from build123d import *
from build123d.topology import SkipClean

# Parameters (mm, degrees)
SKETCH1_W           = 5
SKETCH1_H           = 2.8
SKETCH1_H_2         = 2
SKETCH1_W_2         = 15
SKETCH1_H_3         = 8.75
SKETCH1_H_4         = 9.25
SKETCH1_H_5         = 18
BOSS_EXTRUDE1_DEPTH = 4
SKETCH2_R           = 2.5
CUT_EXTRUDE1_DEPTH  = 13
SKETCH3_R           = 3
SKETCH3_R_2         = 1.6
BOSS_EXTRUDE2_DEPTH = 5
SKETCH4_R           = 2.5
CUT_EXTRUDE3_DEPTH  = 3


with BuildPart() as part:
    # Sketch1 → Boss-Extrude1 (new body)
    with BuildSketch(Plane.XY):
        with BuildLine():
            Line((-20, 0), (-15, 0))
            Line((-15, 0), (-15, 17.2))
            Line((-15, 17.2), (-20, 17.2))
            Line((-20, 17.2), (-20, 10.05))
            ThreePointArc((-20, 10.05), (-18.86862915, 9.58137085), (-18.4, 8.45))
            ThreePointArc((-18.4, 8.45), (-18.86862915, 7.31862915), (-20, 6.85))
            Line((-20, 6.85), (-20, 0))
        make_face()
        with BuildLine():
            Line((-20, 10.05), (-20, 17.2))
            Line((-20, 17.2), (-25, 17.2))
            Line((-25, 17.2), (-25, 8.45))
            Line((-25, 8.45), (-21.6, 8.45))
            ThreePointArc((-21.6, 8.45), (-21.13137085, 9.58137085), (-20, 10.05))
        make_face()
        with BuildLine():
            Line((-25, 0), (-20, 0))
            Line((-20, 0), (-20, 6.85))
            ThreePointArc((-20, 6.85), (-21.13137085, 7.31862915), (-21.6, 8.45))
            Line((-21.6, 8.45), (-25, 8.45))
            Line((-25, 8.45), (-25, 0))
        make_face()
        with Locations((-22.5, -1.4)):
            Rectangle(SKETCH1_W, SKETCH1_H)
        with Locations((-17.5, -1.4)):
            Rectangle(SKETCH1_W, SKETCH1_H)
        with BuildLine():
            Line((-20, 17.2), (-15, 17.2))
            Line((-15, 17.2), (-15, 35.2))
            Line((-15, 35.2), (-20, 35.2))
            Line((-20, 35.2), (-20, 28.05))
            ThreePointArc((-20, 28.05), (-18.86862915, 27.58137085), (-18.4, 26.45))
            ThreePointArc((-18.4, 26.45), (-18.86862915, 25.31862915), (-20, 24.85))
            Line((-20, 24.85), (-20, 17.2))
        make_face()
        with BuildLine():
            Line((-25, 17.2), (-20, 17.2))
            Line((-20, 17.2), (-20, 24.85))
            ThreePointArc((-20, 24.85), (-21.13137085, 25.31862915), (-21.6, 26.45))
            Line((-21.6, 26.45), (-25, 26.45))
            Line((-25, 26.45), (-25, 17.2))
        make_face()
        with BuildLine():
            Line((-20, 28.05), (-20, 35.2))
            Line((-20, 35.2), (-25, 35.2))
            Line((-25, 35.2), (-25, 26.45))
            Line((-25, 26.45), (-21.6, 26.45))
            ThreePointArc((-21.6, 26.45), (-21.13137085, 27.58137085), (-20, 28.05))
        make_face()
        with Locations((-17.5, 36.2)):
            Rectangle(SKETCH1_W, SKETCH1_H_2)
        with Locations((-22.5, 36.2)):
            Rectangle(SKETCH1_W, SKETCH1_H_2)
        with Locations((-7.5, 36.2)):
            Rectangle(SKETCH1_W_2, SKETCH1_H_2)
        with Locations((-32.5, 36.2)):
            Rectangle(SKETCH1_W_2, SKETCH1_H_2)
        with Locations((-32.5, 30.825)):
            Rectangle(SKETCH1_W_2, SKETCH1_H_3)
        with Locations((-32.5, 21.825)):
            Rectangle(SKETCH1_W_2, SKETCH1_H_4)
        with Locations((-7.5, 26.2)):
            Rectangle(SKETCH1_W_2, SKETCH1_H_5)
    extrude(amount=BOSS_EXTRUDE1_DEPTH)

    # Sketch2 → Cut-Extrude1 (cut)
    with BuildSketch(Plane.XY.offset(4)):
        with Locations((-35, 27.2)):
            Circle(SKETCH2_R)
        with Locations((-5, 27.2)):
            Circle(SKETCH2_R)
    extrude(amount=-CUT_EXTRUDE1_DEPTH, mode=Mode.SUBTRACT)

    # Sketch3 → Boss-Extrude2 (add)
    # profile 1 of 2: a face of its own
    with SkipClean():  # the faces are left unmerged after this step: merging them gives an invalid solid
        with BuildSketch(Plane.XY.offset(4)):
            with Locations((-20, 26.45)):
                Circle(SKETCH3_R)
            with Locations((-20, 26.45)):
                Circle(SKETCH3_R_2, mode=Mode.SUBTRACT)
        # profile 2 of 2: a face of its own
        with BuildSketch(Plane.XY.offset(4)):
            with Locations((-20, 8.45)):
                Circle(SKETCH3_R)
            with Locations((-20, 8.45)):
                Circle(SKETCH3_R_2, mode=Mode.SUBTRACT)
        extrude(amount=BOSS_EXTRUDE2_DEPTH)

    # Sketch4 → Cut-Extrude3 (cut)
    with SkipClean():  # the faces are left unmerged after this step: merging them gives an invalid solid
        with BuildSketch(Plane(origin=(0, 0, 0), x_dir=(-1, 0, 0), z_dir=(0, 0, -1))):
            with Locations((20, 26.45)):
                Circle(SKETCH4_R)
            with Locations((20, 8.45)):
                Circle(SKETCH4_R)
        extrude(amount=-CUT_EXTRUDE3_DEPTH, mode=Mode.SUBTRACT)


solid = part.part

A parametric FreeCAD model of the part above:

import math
import FreeCAD as App
import Part
import Sketcher
from FreeCAD import Vector
Q = App.Units.Quantity

doc = App.newDocument("Part")
body = doc.addObject("PartDesign::Body", "Body")

# Sketch on XY plane
sketch1 = body.newObject("Sketcher::SketchObject", "Sketch")
sketch1.AttachmentSupport = (doc.getObject("XY_Plane"), [""])
sketch1.MapMode = "FlatFace"
sketch1.addGeometry(Part.LineSegment(Vector(-25, -2.8, 0), Vector(-15, -2.8, 0)), False)
sketch1.addGeometry(Part.LineSegment(Vector(-15, -2.8, 0), Vector(-15, 17.2, 0)), False)
sketch1.addGeometry(Part.LineSegment(Vector(-15, 17.2, 0), Vector(0, 17.2, 0)), False)
sketch1.addGeometry(Part.LineSegment(Vector(0, 17.2, 0), Vector(0, 37.2, 0)), False)
sketch1.addGeometry(Part.LineSegment(Vector(0, 37.2, 0), Vector(-40, 37.2, 0)), False)
sketch1.addGeometry(Part.LineSegment(Vector(-40, 37.2, 0), Vector(-40, 17.2, 0)), False)
sketch1.addGeometry(Part.LineSegment(Vector(-40, 17.2, 0), Vector(-25, 17.2, 0)), False)
sketch1.addGeometry(Part.LineSegment(Vector(-25, 17.2, 0), Vector(-25, -2.8, 0)), False)
sketch1.addGeometry(Part.ArcOfCircle(Part.Circle(Vector(-20, 26.4, 0), Vector(0, 0, 1), 1.6), math.radians(0), math.radians(90)), False)
sketch1.addGeometry(Part.ArcOfCircle(Part.Circle(Vector(-20, 26.4, 0), Vector(0, 0, 1), 1.6), math.radians(-90), math.radians(0)), False)
sketch1.addGeometry(Part.ArcOfCircle(Part.Circle(Vector(-20, 26.4, 0), Vector(0, 0, 1), 1.6), math.radians(180), math.radians(270)), False)
sketch1.addGeometry(Part.ArcOfCircle(Part.Circle(Vector(-20, 26.4, 0), Vector(0, 0, 1), 1.6), math.radians(90), math.radians(180)), False)
sketch1.addGeometry(Part.ArcOfCircle(Part.Circle(Vector(-20, 8.4, 0), Vector(0, 0, 1), 1.6), math.radians(90), math.radians(180)), False)
sketch1.addGeometry(Part.ArcOfCircle(Part.Circle(Vector(-20, 8.4, 0), Vector(0, 0, 1), 1.6), math.radians(0), math.radians(90)), False)
sketch1.addGeometry(Part.ArcOfCircle(Part.Circle(Vector(-20, 8.4, 0), Vector(0, 0, 1), 1.6), math.radians(-90), math.radians(0)), False)
sketch1.addGeometry(Part.ArcOfCircle(Part.Circle(Vector(-20, 8.4, 0), Vector(0, 0, 1), 1.6), math.radians(180), math.radians(270)), False)
sketch1.addConstraint(Sketcher.Constraint("Coincident", 0, 2, 1, 1))
sketch1.addConstraint(Sketcher.Constraint("Coincident", 1, 2, 2, 1))
sketch1.addConstraint(Sketcher.Constraint("Coincident", 2, 2, 3, 1))
sketch1.addConstraint(Sketcher.Constraint("Coincident", 3, 2, 4, 1))
sketch1.addConstraint(Sketcher.Constraint("Coincident", 4, 2, 5, 1))
sketch1.addConstraint(Sketcher.Constraint("Coincident", 5, 2, 6, 1))
sketch1.addConstraint(Sketcher.Constraint("Coincident", 6, 2, 7, 1))
sketch1.addConstraint(Sketcher.Constraint("Coincident", 7, 2, 0, 1))
sketch1.addConstraint(Sketcher.Constraint("Tangent", 8, 1, 9, 2))
sketch1.addConstraint(Sketcher.Constraint("Tangent", 9, 1, 10, 2))
sketch1.addConstraint(Sketcher.Constraint("Tangent", 10, 1, 11, 2))
sketch1.addConstraint(Sketcher.Constraint("Tangent", 11, 1, 8, 2))
sketch1.addConstraint(Sketcher.Constraint("Tangent", 12, 1, 13, 2))
sketch1.addConstraint(Sketcher.Constraint("Tangent", 13, 1, 14, 2))
sketch1.addConstraint(Sketcher.Constraint("Tangent", 14, 1, 15, 2))
sketch1.addConstraint(Sketcher.Constraint("Tangent", 15, 1, 12, 2))
sketch1.addConstraint(Sketcher.Constraint("Horizontal", 0))
sketch1.addConstraint(Sketcher.Constraint("Vertical", 1))
sketch1.addConstraint(Sketcher.Constraint("Horizontal", 2))
sketch1.addConstraint(Sketcher.Constraint("Vertical", 3))
sketch1.addConstraint(Sketcher.Constraint("Horizontal", 4))
sketch1.addConstraint(Sketcher.Constraint("Vertical", 5))
sketch1.addConstraint(Sketcher.Constraint("Horizontal", 6))
sketch1.addConstraint(Sketcher.Constraint("Vertical", 7))
sketch1.addConstraint(Sketcher.Constraint("Equal", 8, 9))
sketch1.addConstraint(Sketcher.Constraint("Equal", 11, 12))
sketch1.addConstraint(Sketcher.Constraint("Equal", 12, 13))
sketch1.addConstraint(Sketcher.Constraint("PointOnObject", 2, 2, -2))
sketch1.addConstraint(Sketcher.Constraint("Horizontal", 2, 2, 5, 2))
sketch1.addConstraint(Sketcher.Constraint("Horizontal", 11, 3, 8, 1))
sketch1.addConstraint(Sketcher.Constraint("Horizontal", 8, 1, 10, 1))
sketch1.addConstraint(Sketcher.Constraint("Horizontal", 15, 3, 13, 1))
sketch1.addConstraint(Sketcher.Constraint("Horizontal", 13, 1, 15, 1))
sketch1.addConstraint(Sketcher.Constraint("Vertical", 11, 3, 12, 3))
sketch1.addConstraint(Sketcher.Constraint("Vertical", 15, 3, 9, 1))
sketch1.addConstraint(Sketcher.Constraint("Vertical", 9, 1, 11, 1))
sketch1.addConstraint(Sketcher.Constraint("Vertical", 11, 1, 12, 1))
sketch1.addConstraint(Sketcher.Constraint("Vertical", 12, 1, 14, 1))
sketch1.addConstraint(Sketcher.Constraint("Equal", 2, 6))
sketch1.addConstraint(Sketcher.Constraint("Equal", 1, 3))
sketch1.addConstraint(Sketcher.Constraint("Radius", 8, Q("1.6 mm")))
sketch1.addConstraint(Sketcher.Constraint("DistanceX", 0, 1, 0, 2, Q("10 mm")))
sketch1.addConstraint(Sketcher.Constraint("DistanceX", 2, 1, 2, 2, Q("15 mm")))
sketch1.addConstraint(Sketcher.Constraint("DistanceY", 1, 1, 1, 2, Q("20 mm")))
sketch1.addConstraint(Sketcher.Constraint("DistanceX", 8, 3, -1, 1, Q("20 mm")))
sketch1.addConstraint(Sketcher.Constraint("DistanceY", 12, 3, 8, 3, Q("18 mm")))
sketch1.addConstraint(Sketcher.Constraint("DistanceY", 0, 2, -1, 1, Q("2.8 mm")))
sketch1.addConstraint(Sketcher.Constraint("DistanceY", -1, 1, 8, 3, Q("26.45 mm")))
pad1 = body.newObject("PartDesign::Pad", "Pad")
pad1.Profile = sketch1
pad1.Length = 4

# Sketch on XY plane
sketch2 = body.newObject("Sketcher::SketchObject", "Sketch001")
sketch2.AttachmentSupport = (doc.getObject("XY_Plane"), [""])
sketch2.MapMode = "FlatFace"
sketch2.AttachmentOffset = App.Placement(Vector(0, 0, 4), App.Rotation())
sketch2.addGeometry(Part.Circle(Vector(-35, 27.2, 0), Vector(0, 0, 1), 2.5), False)
sketch2.addGeometry(Part.Circle(Vector(-5, 27.2, 0), Vector(0, 0, 1), 2.5), False)
sketch2.addConstraint(Sketcher.Constraint("Equal", 0, 1))
sketch2.addConstraint(Sketcher.Constraint("Horizontal", 0, 3, 1, 3))
sketch2.addConstraint(Sketcher.Constraint("Diameter", 0, Q("5 mm")))
sketch2.addConstraint(Sketcher.Constraint("DistanceX", 0, 3, -1, 1, Q("35 mm")))
sketch2.addConstraint(Sketcher.Constraint("DistanceX", 1, 3, -1, 1, Q("5 mm")))
sketch2.addConstraint(Sketcher.Constraint("DistanceY", -1, 1, 0, 3, Q("27.2 mm")))
pocket1 = body.newObject("PartDesign::Pocket", "Pocket")
pocket1.Profile = sketch2
pocket1.Length = 13

# Sketch on XY plane
sketch3 = body.newObject("Sketcher::SketchObject", "Sketch002")
sketch3.AttachmentSupport = (doc.getObject("XY_Plane"), [""])
sketch3.MapMode = "FlatFace"
sketch3.AttachmentOffset = App.Placement(Vector(0, 0, 4), App.Rotation())
sketch3.addGeometry(Part.Circle(Vector(-20, 26.4, 0), Vector(0, 0, 1), 3), False)
sketch3.addGeometry(Part.Circle(Vector(-20, 26.4, 0), Vector(0, 0, 1), 1.6), False)
sketch3.addGeometry(Part.Circle(Vector(-20, 8.4, 0), Vector(0, 0, 1), 3), False)
sketch3.addGeometry(Part.Circle(Vector(-20, 8.4, 0), Vector(0, 0, 1), 1.6), False)
sketch3.addConstraint(Sketcher.Constraint("Coincident", 1, 3, 0, 3))
sketch3.addConstraint(Sketcher.Constraint("Coincident", 3, 3, 2, 3))
sketch3.addConstraint(Sketcher.Constraint("Equal", 0, 2))
sketch3.addConstraint(Sketcher.Constraint("Equal", 1, 3))
sketch3.addConstraint(Sketcher.Constraint("Vertical", 1, 3, 2, 3))
sketch3.addConstraint(Sketcher.Constraint("Diameter", 0, Q("6 mm")))
sketch3.addConstraint(Sketcher.Constraint("Diameter", 1, Q("3.2 mm")))
sketch3.addConstraint(Sketcher.Constraint("DistanceX", 0, 3, -1, 1, Q("20 mm")))
sketch3.addConstraint(Sketcher.Constraint("DistanceY", 2, 3, 0, 3, Q("18 mm")))
sketch3.addConstraint(Sketcher.Constraint("DistanceY", -1, 1, 0, 3, Q("26.45 mm")))
pad2 = body.newObject("PartDesign::Pad", "Pad001")
pad2.Profile = sketch3
pad2.Length = 5

# Sketch on XY plane
sketch4 = body.newObject("Sketcher::SketchObject", "Sketch003")
sketch4.AttachmentSupport = (doc.getObject("XY_Plane"), [""])
sketch4.MapMode = "FlatFace"
sketch4.addGeometry(Part.Circle(Vector(-20, 26.4, 0), Vector(0, 0, 1), 2.5), False)
sketch4.addGeometry(Part.Circle(Vector(-20, 8.4, 0), Vector(0, 0, 1), 2.5), False)
sketch4.addConstraint(Sketcher.Constraint("Equal", 0, 1))
sketch4.addConstraint(Sketcher.Constraint("Vertical", 0, 3, 1, 3))
sketch4.addConstraint(Sketcher.Constraint("Diameter", 0, Q("5 mm")))
sketch4.addConstraint(Sketcher.Constraint("DistanceX", 0, 3, -1, 1, Q("20 mm")))
sketch4.addConstraint(Sketcher.Constraint("DistanceY", 1, 3, 0, 3, Q("18 mm")))
sketch4.addConstraint(Sketcher.Constraint("DistanceY", -1, 1, 0, 3, Q("26.45 mm")))
pocket2 = body.newObject("PartDesign::Pocket", "Pocket001")
pocket2.Profile = sketch4
pocket2.Length = 3
pocket2.Reversed = True

doc.recompute()
